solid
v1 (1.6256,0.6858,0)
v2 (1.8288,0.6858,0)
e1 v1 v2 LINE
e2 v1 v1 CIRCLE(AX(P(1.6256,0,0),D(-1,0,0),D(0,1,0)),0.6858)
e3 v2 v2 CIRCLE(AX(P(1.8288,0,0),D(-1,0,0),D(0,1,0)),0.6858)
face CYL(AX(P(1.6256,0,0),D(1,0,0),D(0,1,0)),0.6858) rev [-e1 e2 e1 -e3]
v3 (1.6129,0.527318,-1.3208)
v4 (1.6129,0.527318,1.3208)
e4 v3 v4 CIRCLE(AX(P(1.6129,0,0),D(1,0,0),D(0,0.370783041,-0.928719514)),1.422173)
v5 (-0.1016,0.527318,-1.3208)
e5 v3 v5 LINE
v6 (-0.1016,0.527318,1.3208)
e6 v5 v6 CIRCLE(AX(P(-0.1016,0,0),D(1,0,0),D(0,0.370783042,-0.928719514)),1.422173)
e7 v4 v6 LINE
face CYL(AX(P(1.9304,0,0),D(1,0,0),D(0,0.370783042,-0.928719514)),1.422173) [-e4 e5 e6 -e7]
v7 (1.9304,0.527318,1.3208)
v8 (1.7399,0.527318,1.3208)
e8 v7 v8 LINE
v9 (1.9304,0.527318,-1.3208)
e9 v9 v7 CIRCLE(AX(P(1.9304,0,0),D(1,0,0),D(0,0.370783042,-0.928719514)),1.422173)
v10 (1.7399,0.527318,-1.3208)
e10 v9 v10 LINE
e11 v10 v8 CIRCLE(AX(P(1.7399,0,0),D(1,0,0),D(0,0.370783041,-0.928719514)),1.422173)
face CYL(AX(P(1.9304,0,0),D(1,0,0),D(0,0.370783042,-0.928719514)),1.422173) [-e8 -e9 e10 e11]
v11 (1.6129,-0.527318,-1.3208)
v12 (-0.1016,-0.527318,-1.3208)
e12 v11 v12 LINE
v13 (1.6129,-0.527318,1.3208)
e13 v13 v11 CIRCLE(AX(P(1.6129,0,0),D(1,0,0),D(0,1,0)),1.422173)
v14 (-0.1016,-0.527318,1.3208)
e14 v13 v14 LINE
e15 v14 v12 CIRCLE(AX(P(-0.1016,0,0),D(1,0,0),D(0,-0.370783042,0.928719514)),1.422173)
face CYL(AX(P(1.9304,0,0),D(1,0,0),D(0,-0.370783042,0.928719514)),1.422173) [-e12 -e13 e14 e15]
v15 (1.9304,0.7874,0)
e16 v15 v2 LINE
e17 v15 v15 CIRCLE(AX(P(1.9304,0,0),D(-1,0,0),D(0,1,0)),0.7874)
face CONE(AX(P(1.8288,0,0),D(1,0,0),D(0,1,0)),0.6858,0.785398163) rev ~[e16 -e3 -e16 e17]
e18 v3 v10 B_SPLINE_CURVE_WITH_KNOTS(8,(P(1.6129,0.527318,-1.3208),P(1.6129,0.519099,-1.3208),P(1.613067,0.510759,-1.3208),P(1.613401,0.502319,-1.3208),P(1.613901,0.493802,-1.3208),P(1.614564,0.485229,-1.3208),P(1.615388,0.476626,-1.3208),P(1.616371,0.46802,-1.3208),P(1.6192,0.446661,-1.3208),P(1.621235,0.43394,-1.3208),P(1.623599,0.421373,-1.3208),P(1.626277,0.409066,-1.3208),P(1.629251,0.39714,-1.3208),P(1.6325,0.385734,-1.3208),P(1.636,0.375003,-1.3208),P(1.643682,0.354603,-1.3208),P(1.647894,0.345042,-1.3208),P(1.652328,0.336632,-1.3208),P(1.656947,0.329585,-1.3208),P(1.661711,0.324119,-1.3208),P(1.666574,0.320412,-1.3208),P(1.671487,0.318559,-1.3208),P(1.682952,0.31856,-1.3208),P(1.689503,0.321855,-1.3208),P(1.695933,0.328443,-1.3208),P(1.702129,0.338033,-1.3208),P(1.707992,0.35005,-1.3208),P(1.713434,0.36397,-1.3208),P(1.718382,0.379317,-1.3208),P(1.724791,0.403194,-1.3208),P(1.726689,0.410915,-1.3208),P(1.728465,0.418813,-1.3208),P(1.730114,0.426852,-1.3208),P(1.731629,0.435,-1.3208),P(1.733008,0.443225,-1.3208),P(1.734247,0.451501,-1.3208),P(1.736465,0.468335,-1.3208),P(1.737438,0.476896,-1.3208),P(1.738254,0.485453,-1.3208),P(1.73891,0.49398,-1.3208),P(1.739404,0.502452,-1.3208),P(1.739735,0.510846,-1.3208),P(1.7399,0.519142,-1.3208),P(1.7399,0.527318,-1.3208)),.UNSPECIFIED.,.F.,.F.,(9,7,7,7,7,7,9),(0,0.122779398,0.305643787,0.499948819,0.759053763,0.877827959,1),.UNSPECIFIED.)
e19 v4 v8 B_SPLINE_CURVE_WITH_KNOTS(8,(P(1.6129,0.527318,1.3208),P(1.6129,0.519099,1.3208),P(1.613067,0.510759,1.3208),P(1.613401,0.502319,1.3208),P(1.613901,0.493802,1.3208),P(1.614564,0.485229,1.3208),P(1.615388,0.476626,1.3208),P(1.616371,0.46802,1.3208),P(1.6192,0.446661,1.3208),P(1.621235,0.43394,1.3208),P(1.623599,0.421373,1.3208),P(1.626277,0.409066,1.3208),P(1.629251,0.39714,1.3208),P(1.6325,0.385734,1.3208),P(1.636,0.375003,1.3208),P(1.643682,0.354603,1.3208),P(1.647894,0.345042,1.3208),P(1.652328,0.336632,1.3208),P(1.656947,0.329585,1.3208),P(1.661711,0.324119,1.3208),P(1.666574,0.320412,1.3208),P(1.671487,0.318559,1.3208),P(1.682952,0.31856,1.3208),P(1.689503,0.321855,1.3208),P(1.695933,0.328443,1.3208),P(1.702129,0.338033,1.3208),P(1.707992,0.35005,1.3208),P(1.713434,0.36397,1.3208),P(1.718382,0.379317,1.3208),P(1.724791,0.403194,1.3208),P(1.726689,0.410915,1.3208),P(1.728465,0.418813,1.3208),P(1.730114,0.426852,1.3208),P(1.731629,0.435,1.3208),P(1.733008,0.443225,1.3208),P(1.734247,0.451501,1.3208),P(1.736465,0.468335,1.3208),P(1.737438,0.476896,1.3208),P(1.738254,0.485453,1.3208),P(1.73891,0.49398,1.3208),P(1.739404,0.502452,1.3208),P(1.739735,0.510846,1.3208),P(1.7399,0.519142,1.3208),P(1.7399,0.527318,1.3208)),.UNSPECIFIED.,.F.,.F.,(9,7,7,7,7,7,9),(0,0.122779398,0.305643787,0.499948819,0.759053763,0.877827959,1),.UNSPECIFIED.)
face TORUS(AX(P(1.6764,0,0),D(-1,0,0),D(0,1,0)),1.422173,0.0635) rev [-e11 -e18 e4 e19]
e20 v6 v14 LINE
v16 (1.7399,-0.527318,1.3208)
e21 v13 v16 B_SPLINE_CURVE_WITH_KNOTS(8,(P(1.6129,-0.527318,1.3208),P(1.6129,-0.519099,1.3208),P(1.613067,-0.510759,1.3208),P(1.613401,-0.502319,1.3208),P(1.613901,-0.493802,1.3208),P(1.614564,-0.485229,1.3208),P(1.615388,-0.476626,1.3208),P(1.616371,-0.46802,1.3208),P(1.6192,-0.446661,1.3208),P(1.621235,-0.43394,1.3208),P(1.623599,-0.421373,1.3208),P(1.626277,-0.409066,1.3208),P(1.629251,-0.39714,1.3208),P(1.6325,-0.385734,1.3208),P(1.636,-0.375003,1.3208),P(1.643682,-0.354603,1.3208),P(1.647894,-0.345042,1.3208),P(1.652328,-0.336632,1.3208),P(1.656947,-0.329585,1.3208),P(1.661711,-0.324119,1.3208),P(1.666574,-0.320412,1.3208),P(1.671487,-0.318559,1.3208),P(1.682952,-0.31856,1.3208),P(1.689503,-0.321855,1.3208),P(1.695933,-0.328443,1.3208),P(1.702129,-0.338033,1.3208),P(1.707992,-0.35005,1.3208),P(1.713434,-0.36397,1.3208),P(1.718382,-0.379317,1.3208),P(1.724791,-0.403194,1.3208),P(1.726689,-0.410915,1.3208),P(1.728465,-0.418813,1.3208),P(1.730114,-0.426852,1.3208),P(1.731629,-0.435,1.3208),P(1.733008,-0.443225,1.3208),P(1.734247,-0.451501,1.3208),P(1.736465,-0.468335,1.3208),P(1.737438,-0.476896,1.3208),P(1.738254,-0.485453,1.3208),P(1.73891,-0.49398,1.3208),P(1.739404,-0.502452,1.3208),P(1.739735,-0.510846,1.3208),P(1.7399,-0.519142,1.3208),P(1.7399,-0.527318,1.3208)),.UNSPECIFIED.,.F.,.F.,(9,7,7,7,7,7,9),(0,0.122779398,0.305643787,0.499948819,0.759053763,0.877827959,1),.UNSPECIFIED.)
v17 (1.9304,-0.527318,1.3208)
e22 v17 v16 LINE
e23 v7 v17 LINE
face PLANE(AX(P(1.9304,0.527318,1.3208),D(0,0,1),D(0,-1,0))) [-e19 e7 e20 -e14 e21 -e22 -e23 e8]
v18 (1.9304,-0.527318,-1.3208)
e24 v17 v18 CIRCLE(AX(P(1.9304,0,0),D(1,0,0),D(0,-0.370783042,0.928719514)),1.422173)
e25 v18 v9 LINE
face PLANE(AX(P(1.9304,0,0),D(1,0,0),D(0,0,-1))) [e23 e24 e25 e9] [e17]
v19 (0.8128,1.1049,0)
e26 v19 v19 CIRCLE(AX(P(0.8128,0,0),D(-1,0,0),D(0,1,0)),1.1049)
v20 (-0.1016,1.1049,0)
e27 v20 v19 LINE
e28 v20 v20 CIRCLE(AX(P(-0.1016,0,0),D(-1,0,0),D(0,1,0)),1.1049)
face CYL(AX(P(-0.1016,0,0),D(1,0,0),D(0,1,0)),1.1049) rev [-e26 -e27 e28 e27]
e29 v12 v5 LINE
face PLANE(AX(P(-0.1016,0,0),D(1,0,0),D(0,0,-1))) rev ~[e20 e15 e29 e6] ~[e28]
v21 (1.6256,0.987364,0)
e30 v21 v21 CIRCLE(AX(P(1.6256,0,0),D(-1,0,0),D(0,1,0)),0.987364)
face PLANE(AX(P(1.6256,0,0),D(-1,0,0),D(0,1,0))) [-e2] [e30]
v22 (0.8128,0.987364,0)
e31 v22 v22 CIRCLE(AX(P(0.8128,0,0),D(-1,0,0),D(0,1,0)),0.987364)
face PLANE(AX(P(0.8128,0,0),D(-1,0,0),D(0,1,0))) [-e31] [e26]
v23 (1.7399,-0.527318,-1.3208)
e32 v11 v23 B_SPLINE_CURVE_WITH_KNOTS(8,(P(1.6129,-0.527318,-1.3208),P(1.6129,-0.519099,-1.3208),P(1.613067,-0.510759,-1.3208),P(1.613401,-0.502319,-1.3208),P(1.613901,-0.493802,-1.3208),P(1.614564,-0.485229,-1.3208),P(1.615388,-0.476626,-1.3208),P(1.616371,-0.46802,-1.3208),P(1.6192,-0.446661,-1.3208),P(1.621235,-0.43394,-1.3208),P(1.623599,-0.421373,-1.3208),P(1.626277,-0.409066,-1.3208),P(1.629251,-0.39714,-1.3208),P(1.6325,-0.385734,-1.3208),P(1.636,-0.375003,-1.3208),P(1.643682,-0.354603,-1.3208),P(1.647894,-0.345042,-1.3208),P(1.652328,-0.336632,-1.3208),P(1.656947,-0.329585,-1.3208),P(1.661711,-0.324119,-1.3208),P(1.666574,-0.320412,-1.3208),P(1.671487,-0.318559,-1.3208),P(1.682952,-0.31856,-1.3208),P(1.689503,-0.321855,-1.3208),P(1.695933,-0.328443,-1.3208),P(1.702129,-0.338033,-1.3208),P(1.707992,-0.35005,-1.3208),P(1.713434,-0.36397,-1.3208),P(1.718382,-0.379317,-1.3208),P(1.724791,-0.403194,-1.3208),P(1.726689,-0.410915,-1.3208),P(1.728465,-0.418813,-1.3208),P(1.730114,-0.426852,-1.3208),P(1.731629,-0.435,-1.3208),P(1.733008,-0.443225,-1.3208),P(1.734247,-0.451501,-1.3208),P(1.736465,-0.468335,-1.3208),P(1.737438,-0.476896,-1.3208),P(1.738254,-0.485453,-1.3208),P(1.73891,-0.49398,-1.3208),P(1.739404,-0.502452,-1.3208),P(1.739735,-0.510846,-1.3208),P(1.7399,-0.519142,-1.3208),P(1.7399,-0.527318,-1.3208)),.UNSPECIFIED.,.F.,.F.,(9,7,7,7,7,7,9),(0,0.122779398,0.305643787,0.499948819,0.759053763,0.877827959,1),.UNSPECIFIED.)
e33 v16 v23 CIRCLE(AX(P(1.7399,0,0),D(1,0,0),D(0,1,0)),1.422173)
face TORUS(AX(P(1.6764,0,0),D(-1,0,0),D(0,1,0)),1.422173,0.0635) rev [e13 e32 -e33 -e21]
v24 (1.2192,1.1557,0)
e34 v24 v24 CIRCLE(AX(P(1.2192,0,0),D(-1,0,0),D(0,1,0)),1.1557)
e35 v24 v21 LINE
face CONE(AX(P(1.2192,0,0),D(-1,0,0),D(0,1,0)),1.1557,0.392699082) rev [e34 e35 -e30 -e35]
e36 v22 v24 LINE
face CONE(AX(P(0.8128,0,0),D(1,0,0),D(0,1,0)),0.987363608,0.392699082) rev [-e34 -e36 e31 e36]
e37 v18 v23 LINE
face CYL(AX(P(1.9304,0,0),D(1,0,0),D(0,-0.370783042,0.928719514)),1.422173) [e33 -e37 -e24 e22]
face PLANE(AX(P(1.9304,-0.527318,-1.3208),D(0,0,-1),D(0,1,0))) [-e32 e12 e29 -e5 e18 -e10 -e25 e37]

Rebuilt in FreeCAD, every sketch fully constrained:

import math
import FreeCAD as App
import Part
import Sketcher
Q = App.Units.Quantity


def edges_at(feature, points):
    """Names of the edges that pass closest to the given points."""
    edges = feature.Shape.Edges
    near = lambda p: min(range(len(edges)), key=lambda i: edges[i].distToShape(Part.Vertex(*p))[0])
    return sorted({f"Edge{near(p) + 1}" for p in points})

doc = App.newDocument("Part")
body = doc.addObject("PartDesign::Body", "Body")

# Sketch on YZ plane
sketch1 = body.newObject("Sketcher::SketchObject", "Sketch")
sketch1.AttachmentSupport = (doc.getObject("YZ_Plane"), [""])
sketch1.MapMode = "FlatFace"
sketch1.AttachmentOffset = App.Placement(App.Vector(0, 0, 0.076 * 25.4), App.Rotation())
sketch1.addGeometry([
    Part.LineSegment(App.Vector(-0.527318, -1.3208, 0), App.Vector(0.527318, -1.3208, 0)),
    Part.ArcOfCircle(Part.Circle(App.Vector(0, 0, 0), App.Vector(0, 0, 1), 1.422173), math.radians(-68.236082), math.radians(68.236082)),
    Part.LineSegment(App.Vector(0.527318, 1.3208, 0), App.Vector(-0.527318, 1.3208, 0)),
    Part.ArcOfCircle(Part.Circle(App.Vector(0, 0, 0), App.Vector(0, 0, 1), 1.422173), math.radians(111.763918), math.radians(248.236082)),
], False)
sketch1.addConstraint([
    Sketcher.Constraint("Coincident", 0, 2, 1, 1),
    Sketcher.Constraint("Coincident", 1, 2, 2, 1),
    Sketcher.Constraint("Coincident", 2, 2, 3, 1),
    Sketcher.Constraint("Coincident", 3, 2, 0, 1),
    Sketcher.Constraint("Horizontal", 0),
    Sketcher.Constraint("Horizontal", 2),
    Sketcher.Constraint("Coincident", 1, 3, -1, 1),
    Sketcher.Constraint("Coincident", 3, 3, -1, 1),
    Sketcher.Constraint("Equal", 1, 3),
    Sketcher.Constraint("Vertical", 0, 2, 1, 2),
    Sketcher.Constraint("DistanceY", 0, 2, -1, 1, Q("0.052 in")),
    Sketcher.Constraint("Radius", 1, Q("1.422173 mm")),
])
pad1 = body.newObject("PartDesign::Pad", "Pad")
pad1.Profile = sketch1
pad1.Length = Q("0.08 in")
pad1.Reversed = True

# Sketch on XY plane
sketch2 = body.newObject("Sketcher::SketchObject", "Sketch001")
sketch2.AttachmentSupport = (doc.getObject("XY_Plane"), [""])
sketch2.MapMode = "FlatFace"
sketch2.addGeometry([
    Part.LineSegment(App.Vector(1.9304, 0.6858, 0), App.Vector(1.9304, 0, 0)),  # 0
    Part.LineSegment(App.Vector(1.9304, 0, 0), App.Vector(-0.1016, 0, 0)),  # 1
    Part.LineSegment(App.Vector(-0.1016, 0, 0), App.Vector(-0.1016, 1.1049, 0)),  # 2
    Part.LineSegment(App.Vector(-0.1016, 1.1049, 0), App.Vector(0.8128, 1.1049, 0)),  # 3
    Part.LineSegment(App.Vector(0.8128, 1.1049, 0), App.Vector(0.8128, 0.987364, 0)),  # 4
    Part.LineSegment(App.Vector(0.8128, 0.987364, 0), App.Vector(1.2192, 1.1557, 0)),  # 5
    Part.LineSegment(App.Vector(1.2192, 1.1557, 0), App.Vector(1.6256, 0.987364, 0)),  # 6
    Part.LineSegment(App.Vector(1.6256, 0.987364, 0), App.Vector(1.6256, 0.6858, 0)),  # 7
    Part.LineSegment(App.Vector(1.6256, 0.6858, 0), App.Vector(1.9304, 0.6858, 0)),  # 8
], False)
sketch2.addConstraint([
    Sketcher.Constraint("Coincident", 0, 2, 1, 1),
    Sketcher.Constraint("Coincident", 1, 2, 2, 1),
    Sketcher.Constraint("Coincident", 2, 2, 3, 1),
    Sketcher.Constraint("Coincident", 3, 2, 4, 1),
    Sketcher.Constraint("Coincident", 4, 2, 5, 1),
    Sketcher.Constraint("Coincident", 5, 2, 6, 1),
    Sketcher.Constraint("Coincident", 6, 2, 7, 1),
    Sketcher.Constraint("Coincident", 7, 2, 8, 1),
    Sketcher.Constraint("Coincident", 8, 2, 0, 1),
    Sketcher.Constraint("Vertical", 0),
    Sketcher.Constraint("Horizontal", 1),
    Sketcher.Constraint("Vertical", 2),
    Sketcher.Constraint("Horizontal", 3),
    Sketcher.Constraint("Vertical", 4),
    Sketcher.Constraint("Vertical", 7),
    Sketcher.Constraint("Horizontal", 8),
    Sketcher.Constraint("PointOnObject", 0, 2, -1),
    Sketcher.Constraint("Horizontal", 4, 2, 6, 2),
    Sketcher.Constraint("Equal", 5, 6),
    Sketcher.Constraint("DistanceX", 1, 2, 1, 1, Q("0.08 in")),
    Sketcher.Constraint("Angle", 5, Q("22.5 deg")),
    Sketcher.Constraint("DistanceX", 3, 1, 3, 2, Q("0.036 in")),
    Sketcher.Constraint("DistanceX", 8, 1, 8, 2, Q("0.012 in")),
    Sketcher.Constraint("DistanceY", 0, 2, 0, 1, Q("0.027 in")),
    Sketcher.Constraint("DistanceY", 2, 1, 2, 2, Q("0.0435 in")),
    Sketcher.Constraint("DistanceX", -1, 1, 0, 2, Q("0.076 in")),
    Sketcher.Constraint("DistanceY", 3, 2, 5, 2, Q("0.002 in")),
])
groove = body.newObject("PartDesign::Groove", "Groove")
groove.Profile = sketch2
groove.ReferenceAxis = (sketch2, ["H_Axis"])
groove.Angle = 360
doc.recompute()

chamfer = body.newObject("PartDesign::Chamfer", "Chamfer")
chamfer.Base = (groove, edges_at(groove, [(1.93, -0.686, 0)]))
chamfer.Size = Q("0.004 in")

# Sketch on XY plane
sketch3 = body.newObject("Sketcher::SketchObject", "Sketch002")
sketch3.AttachmentSupport = (doc.getObject("XY_Plane"), [""])
sketch3.MapMode = "FlatFace"
sketch3.addGeometry([
    Part.LineSegment(App.Vector(1.7399, 1.422173, 0), App.Vector(1.6129, 1.422173, 0)),
    Part.ArcOfCircle(Part.Circle(App.Vector(1.6764, 1.422173, 0), App.Vector(0, 0, 1), 0.0635), math.radians(180), math.radians(360)),
], False)
sketch3.addConstraint([
    Sketcher.Constraint("Coincident", 0, 1, 1, 2),
    Sketcher.Constraint("Coincident", 1, 1, 0, 2),
    Sketcher.Constraint("Horizontal", 0),
    Sketcher.Constraint("Horizontal", 1, 3, 0, 1),
    Sketcher.Constraint("Radius", 1, Q("0.0025 in")),
    Sketcher.Constraint("DistanceX", -1, 1, 1, 3, Q("0.066 in")),
    Sketcher.Constraint("DistanceY", -1, 1, 1, 3, Q("1.422173 mm")),
])
groove2 = body.newObject("PartDesign::Groove", "Groove001")
groove2.Profile = sketch3
groove2.ReferenceAxis = (sketch3, ["H_Axis"])
groove2.Angle = 360

doc.recompute()
